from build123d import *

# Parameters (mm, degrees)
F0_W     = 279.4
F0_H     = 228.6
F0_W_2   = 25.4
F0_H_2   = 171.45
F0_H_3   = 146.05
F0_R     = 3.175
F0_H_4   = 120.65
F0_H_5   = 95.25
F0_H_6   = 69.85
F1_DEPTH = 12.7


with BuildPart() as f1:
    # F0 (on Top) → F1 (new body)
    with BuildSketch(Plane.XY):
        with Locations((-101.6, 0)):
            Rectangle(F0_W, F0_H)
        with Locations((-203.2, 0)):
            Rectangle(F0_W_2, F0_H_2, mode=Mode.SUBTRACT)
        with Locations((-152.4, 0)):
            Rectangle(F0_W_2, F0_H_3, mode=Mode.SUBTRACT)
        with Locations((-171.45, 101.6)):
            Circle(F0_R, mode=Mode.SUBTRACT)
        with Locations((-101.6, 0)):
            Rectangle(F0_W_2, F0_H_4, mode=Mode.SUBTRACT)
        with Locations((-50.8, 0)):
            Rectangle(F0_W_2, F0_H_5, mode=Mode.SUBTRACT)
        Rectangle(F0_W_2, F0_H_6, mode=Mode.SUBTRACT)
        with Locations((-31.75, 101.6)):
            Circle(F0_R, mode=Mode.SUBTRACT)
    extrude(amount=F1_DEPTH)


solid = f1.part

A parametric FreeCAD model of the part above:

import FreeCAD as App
import Part
import Sketcher

V = App.Vector
Q = App.Units.Quantity

doc = App.newDocument("Part")
params = doc.addObject("Spreadsheet::Sheet", "Params")
for row, (alias, value) in enumerate([
    ("sketch1_diameter", "0.25 in"),
    ("sketch1_width", "11 in"),
    ("sketch1_width2", "1 in"),
    ("sketch1_height", "9 in"),
    ("sketch1_height2", "6.75 in"),
    ("pad1_length", "0.5 in"),
], start=1):
    params.set(f"A{row}", alias)
    params.set(f"B{row}", "=" + value)
    params.setAlias(f"B{row}", alias)

body = doc.addObject("PartDesign::Body", "Body")

# Sketch on XY plane
sketch1 = doc.addObject("Sketcher::SketchObject", "Sketch")
body.addObject(sketch1)
sketch1.AttachmentSupport = (doc.XY_Plane, [""])
sketch1.MapMode = "FlatFace"
sketch1.addGeometry(Part.LineSegment(V(-241.3, 114.3, 0), V(-241.3, -114.3, 0)), False)
sketch1.addGeometry(Part.LineSegment(V(-241.3, -114.3, 0), V(38.1, -114.3, 0)), False)
sketch1.addGeometry(Part.LineSegment(V(38.1, -114.3, 0), V(38.1, 114.3, 0)), False)
sketch1.addGeometry(Part.LineSegment(V(38.1, 114.3, 0), V(-241.3, 114.3, 0)), False)
sketch1.addGeometry(Part.LineSegment(V(-190.5, -85.725, 0), V(-215.9, -85.725, 0)), False)
sketch1.addGeometry(Part.LineSegment(V(-215.9, -85.725, 0), V(-215.9, 85.725, 0)), False)
sketch1.addGeometry(Part.LineSegment(V(-215.9, 85.725, 0), V(-190.5, 85.725, 0)), False)
sketch1.addGeometry(Part.LineSegment(V(-190.5, 85.725, 0), V(-190.5, -85.725, 0)), False)
sketch1.addGeometry(Part.LineSegment(V(-139.7, -73.025, 0), V(-165.1, -73.025, 0)), False)
sketch1.addGeometry(Part.LineSegment(V(-165.1, -73.025, 0), V(-165.1, 73.025, 0)), False)
sketch1.addGeometry(Part.LineSegment(V(-165.1, 73.025, 0), V(-139.7, 73.025, 0)), False)
sketch1.addGeometry(Part.LineSegment(V(-139.7, 73.025, 0), V(-139.7, -73.025, 0)), False)
sketch1.addGeometry(Part.LineSegment(V(-88.9, -60.325, 0), V(-114.3, -60.325, 0)), False)
sketch1.addGeometry(Part.LineSegment(V(-114.3, -60.325, 0), V(-114.3, 60.325, 0)), False)
sketch1.addGeometry(Part.LineSegment(V(-114.3, 60.325, 0), V(-88.9, 60.325, 0)), False)
sketch1.addGeometry(Part.LineSegment(V(-88.9, 60.325, 0), V(-88.9, -60.325, 0)), False)
sketch1.addGeometry(Part.LineSegment(V(-38.1, -47.625, 0), V(-63.5, -47.625, 0)), False)
sketch1.addGeometry(Part.LineSegment(V(-63.5, -47.625, 0), V(-63.5, 47.625, 0)), False)
sketch1.addGeometry(Part.LineSegment(V(-63.5, 47.625, 0), V(-38.1, 47.625, 0)), False)
sketch1.addGeometry(Part.LineSegment(V(-38.1, 47.625, 0), V(-38.1, -47.625, 0)), False)
sketch1.addGeometry(Part.LineSegment(V(12.7, -34.925, 0), V(-12.7, -34.925, 0)), False)
sketch1.addGeometry(Part.LineSegment(V(-12.7, -34.925, 0), V(-12.7, 34.925, 0)), False)
sketch1.addGeometry(Part.LineSegment(V(-12.7, 34.925, 0), V(12.7, 34.925, 0)), False)
sketch1.addGeometry(Part.LineSegment(V(12.7, 34.925, 0), V(12.7, -34.925, 0)), False)
sketch1.addGeometry(Part.Circle(V(-171.45, 101.6, 0), V(0, 0, 1), 3.175), False)
sketch1.addGeometry(Part.Circle(V(-31.75, 101.6, 0), V(0, 0, 1), 3.175), False)
sketch1.addConstraint(Sketcher.Constraint("Coincident", 0, 2, 1, 1))
sketch1.addConstraint(Sketcher.Constraint("Coincident", 1, 2, 2, 1))
sketch1.addConstraint(Sketcher.Constraint("Coincident", 2, 2, 3, 1))
sketch1.addConstraint(Sketcher.Constraint("Coincident", 3, 2, 0, 1))
sketch1.addConstraint(Sketcher.Constraint("Coincident", 4, 2, 5, 1))
sketch1.addConstraint(Sketcher.Constraint("Coincident", 5, 2, 6, 1))
sketch1.addConstraint(Sketcher.Constraint("Coincident", 6, 2, 7, 1))
sketch1.addConstraint(Sketcher.Constraint("Coincident", 7, 2, 4, 1))
sketch1.addConstraint(Sketcher.Constraint("Coincident", 8, 2, 9, 1))
sketch1.addConstraint(Sketcher.Constraint("Coincident", 9, 2, 10, 1))
sketch1.addConstraint(Sketcher.Constraint("Coincident", 10, 2, 11, 1))
sketch1.addConstraint(Sketcher.Constraint("Coincident", 11, 2, 8, 1))
sketch1.addConstraint(Sketcher.Constraint("Coincident", 12, 2, 13, 1))
sketch1.addConstraint(Sketcher.Constraint("Coincident", 13, 2, 14, 1))
sketch1.addConstraint(Sketcher.Constraint("Coincident", 14, 2, 15, 1))
sketch1.addConstraint(Sketcher.Constraint("Coincident", 15, 2, 12, 1))
sketch1.addConstraint(Sketcher.Constraint("Coincident", 16, 2, 17, 1))
sketch1.addConstraint(Sketcher.Constraint("Coincident", 17, 2, 18, 1))
sketch1.addConstraint(Sketcher.Constraint("Coincident", 18, 2, 19, 1))
sketch1.addConstraint(Sketcher.Constraint("Coincident", 19, 2, 16, 1))
sketch1.addConstraint(Sketcher.Constraint("Coincident", 20, 2, 21, 1))
sketch1.addConstraint(Sketcher.Constraint("Coincident", 21, 2, 22, 1))
sketch1.addConstraint(Sketcher.Constraint("Coincident", 22, 2, 23, 1))
sketch1.addConstraint(Sketcher.Constraint("Coincident", 23, 2, 20, 1))
sketch1.addConstraint(Sketcher.Constraint("Vertical", 0))
sketch1.addConstraint(Sketcher.Constraint("Horizontal", 1))
sketch1.addConstraint(Sketcher.Constraint("Vertical", 2))
sketch1.addConstraint(Sketcher.Constraint("Horizontal", 3))
sketch1.addConstraint(Sketcher.Constraint("Horizontal", 4))
sketch1.addConstraint(Sketcher.Constraint("Vertical", 5))
sketch1.addConstraint(Sketcher.Constraint("Horizontal", 6))
sketch1.addConstraint(Sketcher.Constraint("Vertical", 7))
sketch1.addConstraint(Sketcher.Constraint("Horizontal", 8))
sketch1.addConstraint(Sketcher.Constraint("Vertical", 9))
sketch1.addConstraint(Sketcher.Constraint("Horizontal", 10))
sketch1.addConstraint(Sketcher.Constraint("Vertical", 11))
sketch1.addConstraint(Sketcher.Constraint("Horizontal", 12))
sketch1.addConstraint(Sketcher.Constraint("Vertical", 13))
sketch1.addConstraint(Sketcher.Constraint("Horizontal", 14))
sketch1.addConstraint(Sketcher.Constraint("Vertical", 15))
sketch1.addConstraint(Sketcher.Constraint("Horizontal", 16))
sketch1.addConstraint(Sketcher.Constraint("Vertical", 17))
sketch1.addConstraint(Sketcher.Constraint("Horizontal", 18))
sketch1.addConstraint(Sketcher.Constraint("Vertical", 19))
sketch1.addConstraint(Sketcher.Constraint("Horizontal", 20))
sketch1.addConstraint(Sketcher.Constraint("Vertical", 21))
sketch1.addConstraint(Sketcher.Constraint("Horizontal", 22))
sketch1.addConstraint(Sketcher.Constraint("Vertical", 23))
sketch1.addConstraint(Sketcher.Constraint("Equal", 24, 25))
sketch1.addConstraint(Sketcher.Constraint("Symmetric", 20, 2, 22, 2, -1, 1))
sketch1.addConstraint(Sketcher.Constraint("Horizontal", 24, 3, 25, 3))
sketch1.addConstraint(Sketcher.Constraint("Equal", 6, 8))
sketch1.addConstraint(Sketcher.Constraint("Equal", 10, 12))
sketch1.addConstraint(Sketcher.Constraint("Equal", 14, 16))
sketch1.addConstraint(Sketcher.Constraint("Equal", 18, 20))
sketch1.addConstraint(Sketcher.Constraint("Diameter", 24, Q("0.25 in")))
sketch1.addConstraint(Sketcher.Constraint("DistanceX", 1, 1, 1, 2, Q("11 in")))
sketch1.addConstraint(Sketcher.Constraint("DistanceX", 4, 2, 4, 1, Q("1 in")))
sketch1.addConstraint(Sketcher.Constraint("DistanceY", 0, 2, 0, 1, Q("9 in")))
sketch1.addConstraint(Sketcher.Constraint("DistanceY", -1, 1, 24, 3, Q("4 in")))
sketch1.addConstraint(Sketcher.Constraint("DistanceX", 0, 2, 4, 2, Q("1 in")))
sketch1.addConstraint(Sketcher.Constraint("DistanceX", 7, 2, 8, 2, Q("1 in")))
sketch1.addConstraint(Sketcher.Constraint("DistanceX", 11, 2, 12, 2, Q("1 in")))
sketch1.addConstraint(Sketcher.Constraint("DistanceY", 7, 2, 12, 2, Q("1 in")))
sketch1.addConstraint(Sketcher.Constraint("DistanceY", 13, 2, 6, 2, Q("1 in")))
sketch1.addConstraint(Sketcher.Constraint("DistanceX", 15, 2, 16, 2, Q("1 in")))
sketch1.addConstraint(Sketcher.Constraint("DistanceY", 11, 2, 16, 2, Q("1 in")))
sketch1.addConstraint(Sketcher.Constraint("DistanceY", 17, 2, 10, 2, Q("1 in")))
sketch1.addConstraint(Sketcher.Constraint("DistanceX", 19, 2, 20, 2, Q("1 in")))
sketch1.addConstraint(Sketcher.Constraint("DistanceY", 15, 2, 20, 2, Q("1 in")))
sketch1.addConstraint(Sketcher.Constraint("DistanceY", 21, 2, 14, 2, Q("1 in")))
sketch1.addConstraint(Sketcher.Constraint("DistanceY", 5, 1, 5, 2, Q("6.75 in")))
sketch1.addConstraint(Sketcher.Constraint("DistanceY", 9, 1, 9, 2, Q("5.75 in")))
sketch1.addConstraint(Sketcher.Constraint("DistanceY", 0, 2, -1, 1, Q("4.5 in")))
sketch1.addConstraint(Sketcher.Constraint("DistanceX", 24, 3, 25, 3, Q("5.5 in")))
sketch1.addConstraint(Sketcher.Constraint("DistanceY", 7, 2, 8, 2, Q("0.5 in")))
sketch1.addConstraint(Sketcher.Constraint("DistanceX", 24, 3, -1, 1, Q("6.75 in")))
sketch1.setExpression("Constraints[55]", "Params.sketch1_diameter")
sketch1.setExpression("Constraints[56]", "Params.sketch1_width")
sketch1.setExpression("Constraints[57]", "Params.sketch1_width2")
sketch1.setExpression("Constraints[58]", "Params.sketch1_height")
sketch1.setExpression("Constraints[71]", "Params.sketch1_height2")
pad1 = doc.addObject("PartDesign::Pad", "Pad")
body.addObject(pad1)
pad1.Profile = sketch1
pad1.setExpression("Length", "Params.pad1_length")

doc.recompute()
